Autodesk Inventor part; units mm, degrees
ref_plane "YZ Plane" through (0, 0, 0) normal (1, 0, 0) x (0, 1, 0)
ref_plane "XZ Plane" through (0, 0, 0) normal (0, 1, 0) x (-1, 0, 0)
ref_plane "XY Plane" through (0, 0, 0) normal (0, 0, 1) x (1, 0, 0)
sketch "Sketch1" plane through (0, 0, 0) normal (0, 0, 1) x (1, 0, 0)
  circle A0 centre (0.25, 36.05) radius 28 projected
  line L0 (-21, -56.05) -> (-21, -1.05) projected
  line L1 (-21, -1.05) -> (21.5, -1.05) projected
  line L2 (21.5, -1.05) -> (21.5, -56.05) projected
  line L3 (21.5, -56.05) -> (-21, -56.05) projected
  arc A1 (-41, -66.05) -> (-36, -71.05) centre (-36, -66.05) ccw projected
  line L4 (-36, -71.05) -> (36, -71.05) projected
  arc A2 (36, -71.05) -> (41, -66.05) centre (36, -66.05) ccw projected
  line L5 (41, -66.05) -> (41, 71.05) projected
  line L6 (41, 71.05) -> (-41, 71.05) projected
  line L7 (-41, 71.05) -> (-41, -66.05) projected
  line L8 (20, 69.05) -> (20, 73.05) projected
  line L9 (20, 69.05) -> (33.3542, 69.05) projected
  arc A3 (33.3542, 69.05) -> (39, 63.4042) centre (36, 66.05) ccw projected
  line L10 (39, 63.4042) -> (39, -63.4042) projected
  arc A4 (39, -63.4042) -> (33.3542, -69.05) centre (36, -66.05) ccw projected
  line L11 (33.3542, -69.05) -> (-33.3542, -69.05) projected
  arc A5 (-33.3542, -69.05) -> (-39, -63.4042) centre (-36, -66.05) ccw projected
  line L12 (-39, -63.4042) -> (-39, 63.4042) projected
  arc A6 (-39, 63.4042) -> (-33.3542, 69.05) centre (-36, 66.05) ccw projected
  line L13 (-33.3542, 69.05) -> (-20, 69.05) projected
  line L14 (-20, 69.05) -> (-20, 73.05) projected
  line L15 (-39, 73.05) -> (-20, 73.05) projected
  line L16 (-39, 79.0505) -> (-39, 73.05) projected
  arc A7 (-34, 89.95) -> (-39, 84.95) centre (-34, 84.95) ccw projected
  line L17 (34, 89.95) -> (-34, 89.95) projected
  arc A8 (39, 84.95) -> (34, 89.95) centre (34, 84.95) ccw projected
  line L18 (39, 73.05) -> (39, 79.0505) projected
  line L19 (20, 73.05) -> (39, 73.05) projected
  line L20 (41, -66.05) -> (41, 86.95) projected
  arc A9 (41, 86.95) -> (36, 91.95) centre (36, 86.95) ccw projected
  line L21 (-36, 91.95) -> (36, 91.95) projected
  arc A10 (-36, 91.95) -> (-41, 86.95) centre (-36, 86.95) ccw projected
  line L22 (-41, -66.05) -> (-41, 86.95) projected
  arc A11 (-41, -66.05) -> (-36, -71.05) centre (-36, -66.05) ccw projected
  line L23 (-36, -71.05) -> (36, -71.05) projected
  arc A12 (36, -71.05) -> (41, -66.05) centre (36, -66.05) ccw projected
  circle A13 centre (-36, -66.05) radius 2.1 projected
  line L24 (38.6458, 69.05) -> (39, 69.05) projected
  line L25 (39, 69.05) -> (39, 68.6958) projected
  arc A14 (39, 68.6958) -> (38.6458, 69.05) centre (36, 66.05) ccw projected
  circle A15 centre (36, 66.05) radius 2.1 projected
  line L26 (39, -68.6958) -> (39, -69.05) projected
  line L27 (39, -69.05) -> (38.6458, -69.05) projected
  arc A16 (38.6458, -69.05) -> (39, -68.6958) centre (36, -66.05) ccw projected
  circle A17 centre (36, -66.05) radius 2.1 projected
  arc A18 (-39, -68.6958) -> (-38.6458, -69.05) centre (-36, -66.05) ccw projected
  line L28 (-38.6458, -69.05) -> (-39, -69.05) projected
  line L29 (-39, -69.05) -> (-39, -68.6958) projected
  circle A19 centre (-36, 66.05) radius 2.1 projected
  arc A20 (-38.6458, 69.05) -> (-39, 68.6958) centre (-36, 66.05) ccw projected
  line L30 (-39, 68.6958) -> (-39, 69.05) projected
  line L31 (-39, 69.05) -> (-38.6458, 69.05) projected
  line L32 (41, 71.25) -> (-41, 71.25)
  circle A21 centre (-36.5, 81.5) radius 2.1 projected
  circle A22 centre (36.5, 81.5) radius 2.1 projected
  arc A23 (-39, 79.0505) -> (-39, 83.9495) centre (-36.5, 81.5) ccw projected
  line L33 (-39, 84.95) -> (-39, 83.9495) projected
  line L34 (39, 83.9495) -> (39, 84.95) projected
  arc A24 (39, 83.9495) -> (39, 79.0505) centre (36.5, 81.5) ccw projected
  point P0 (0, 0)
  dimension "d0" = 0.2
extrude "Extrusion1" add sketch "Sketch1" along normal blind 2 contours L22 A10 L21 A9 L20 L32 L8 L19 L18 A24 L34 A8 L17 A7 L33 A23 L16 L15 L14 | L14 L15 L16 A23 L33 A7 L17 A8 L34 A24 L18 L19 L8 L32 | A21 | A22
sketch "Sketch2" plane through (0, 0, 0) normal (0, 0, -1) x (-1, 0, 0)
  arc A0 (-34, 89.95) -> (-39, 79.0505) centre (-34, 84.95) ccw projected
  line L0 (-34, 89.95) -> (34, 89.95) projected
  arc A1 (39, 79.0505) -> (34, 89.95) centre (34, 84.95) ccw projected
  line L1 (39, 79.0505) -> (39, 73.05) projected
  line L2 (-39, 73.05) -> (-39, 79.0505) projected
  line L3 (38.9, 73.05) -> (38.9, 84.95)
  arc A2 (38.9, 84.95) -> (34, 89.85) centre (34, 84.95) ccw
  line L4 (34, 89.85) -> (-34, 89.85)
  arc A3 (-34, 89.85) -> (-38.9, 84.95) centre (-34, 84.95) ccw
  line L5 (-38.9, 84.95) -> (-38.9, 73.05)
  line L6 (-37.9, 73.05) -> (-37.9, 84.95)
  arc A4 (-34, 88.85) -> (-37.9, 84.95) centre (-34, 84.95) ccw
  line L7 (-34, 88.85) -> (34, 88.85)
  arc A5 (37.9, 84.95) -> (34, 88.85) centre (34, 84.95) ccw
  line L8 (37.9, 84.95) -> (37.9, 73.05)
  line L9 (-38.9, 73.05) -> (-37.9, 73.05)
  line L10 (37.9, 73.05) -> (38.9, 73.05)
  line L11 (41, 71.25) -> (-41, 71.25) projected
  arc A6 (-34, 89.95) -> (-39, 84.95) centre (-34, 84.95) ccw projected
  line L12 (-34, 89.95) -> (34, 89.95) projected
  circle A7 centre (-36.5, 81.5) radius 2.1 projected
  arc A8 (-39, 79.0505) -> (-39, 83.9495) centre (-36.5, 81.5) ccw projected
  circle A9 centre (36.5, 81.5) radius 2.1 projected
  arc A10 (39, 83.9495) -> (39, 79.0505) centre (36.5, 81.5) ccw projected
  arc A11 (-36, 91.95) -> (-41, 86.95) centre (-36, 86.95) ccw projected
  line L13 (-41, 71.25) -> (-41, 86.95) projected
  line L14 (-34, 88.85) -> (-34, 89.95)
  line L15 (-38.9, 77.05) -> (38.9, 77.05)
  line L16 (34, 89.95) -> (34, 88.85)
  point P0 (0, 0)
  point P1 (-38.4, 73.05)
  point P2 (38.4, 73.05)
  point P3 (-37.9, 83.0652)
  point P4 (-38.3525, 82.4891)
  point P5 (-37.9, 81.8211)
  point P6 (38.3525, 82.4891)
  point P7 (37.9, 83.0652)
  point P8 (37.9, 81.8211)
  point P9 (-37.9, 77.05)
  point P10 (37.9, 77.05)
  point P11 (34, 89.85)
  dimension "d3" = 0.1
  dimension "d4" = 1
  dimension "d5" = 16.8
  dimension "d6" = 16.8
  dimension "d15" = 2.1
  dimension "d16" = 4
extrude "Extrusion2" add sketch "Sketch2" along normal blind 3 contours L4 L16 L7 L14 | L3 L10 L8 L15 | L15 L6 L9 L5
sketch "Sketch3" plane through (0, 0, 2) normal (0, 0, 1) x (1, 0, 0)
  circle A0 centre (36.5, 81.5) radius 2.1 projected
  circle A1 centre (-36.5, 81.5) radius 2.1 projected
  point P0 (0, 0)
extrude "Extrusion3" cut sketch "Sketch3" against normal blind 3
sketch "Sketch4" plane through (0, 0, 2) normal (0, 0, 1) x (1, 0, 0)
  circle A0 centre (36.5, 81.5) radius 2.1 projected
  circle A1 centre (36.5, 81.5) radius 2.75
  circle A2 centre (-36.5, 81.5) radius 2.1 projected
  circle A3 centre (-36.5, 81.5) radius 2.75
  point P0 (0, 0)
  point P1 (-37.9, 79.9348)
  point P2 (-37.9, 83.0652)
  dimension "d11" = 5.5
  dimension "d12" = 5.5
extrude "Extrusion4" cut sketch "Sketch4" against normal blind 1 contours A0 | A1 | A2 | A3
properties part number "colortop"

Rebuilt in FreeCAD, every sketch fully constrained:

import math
import FreeCAD as App
import Part
import Sketcher

doc = App.newDocument("Part")
body = doc.addObject("PartDesign::Body", "Body")

sketch1 = doc.addObject("Sketcher::SketchObject", "Sketch")
body.addObject(sketch1)
sketch1.AttachmentSupport = (doc.XY_Plane, [""])
sketch1.MapMode = "FlatFace"
sketch1.addGeometry(Part.LineSegment(App.Vector(-41, 86.95, 0), App.Vector(-41, 71.25, 0)), False)
sketch1.addGeometry(Part.LineSegment(App.Vector(-41, 71.25, 0), App.Vector(41, 71.25, 0)), False)
sketch1.addGeometry(Part.LineSegment(App.Vector(41, 71.25, 0), App.Vector(41, 86.95, 0)), False)
sketch1.addGeometry(Part.ArcOfCircle(Part.Circle(App.Vector(36, 86.95, 0), App.Vector(0, 0, 1), 5), math.radians(0), math.radians(90)), False)
sketch1.addGeometry(Part.LineSegment(App.Vector(36, 91.95, 0), App.Vector(-36, 91.95, 0)), False)
sketch1.addGeometry(Part.ArcOfCircle(Part.Circle(App.Vector(-36, 86.95, 0), App.Vector(0, 0, 1), 5), math.radians(90), math.radians(180)), False)
sketch1.addConstraint(Sketcher.Constraint("Coincident", 0, 2, 1, 1))
sketch1.addConstraint(Sketcher.Constraint("Coincident", 1, 2, 2, 1))
sketch1.addConstraint(Sketcher.Constraint("Tangent", 2, 2, 3, 1))
sketch1.addConstraint(Sketcher.Constraint("Tangent", 3, 2, 4, 1))
sketch1.addConstraint(Sketcher.Constraint("Tangent", 4, 2, 5, 1))
sketch1.addConstraint(Sketcher.Constraint("Tangent", 5, 2, 0, 1))
sketch1.addConstraint(Sketcher.Constraint("Vertical", 0))
sketch1.addConstraint(Sketcher.Constraint("Horizontal", 1))
sketch1.addConstraint(Sketcher.Constraint("Vertical", 2))
sketch1.addConstraint(Sketcher.Constraint("Horizontal", 4))
sketch1.addConstraint(Sketcher.Constraint("Equal", 3, 5))
sketch1.addConstraint(Sketcher.Constraint("Radius", 3, 5.0))
sketch1.addConstraint(Sketcher.Constraint("DistanceX", 1, 1, 1, 2, 82.0))
sketch1.addConstraint(Sketcher.Constraint("DistanceY", 0, 2, 0, 1, 15.7))
sketch1.addConstraint(Sketcher.Constraint("DistanceX", -1, 1, 3, 3, 36.0))
sketch1.addConstraint(Sketcher.Constraint("DistanceY", -1, 1, 3, 3, 86.95))
pad1 = doc.addObject("PartDesign::Pad", "Pad")
body.addObject(pad1)
pad1.Profile = sketch1
pad1.Length = 2

sketch2 = doc.addObject("Sketcher::SketchObject", "Sketch001")
body.addObject(sketch2)
sketch2.AttachmentSupport = (doc.XY_Plane, [""])
sketch2.MapMode = "FlatFace"
sketch2.addGeometry(Part.LineSegment(App.Vector(-34, 89.85, 0), App.Vector(34, 89.85, 0)), False)
sketch2.addGeometry(Part.LineSegment(App.Vector(34, 89.85, 0), App.Vector(34, 88.85, 0)), False)
sketch2.addGeometry(Part.LineSegment(App.Vector(34, 88.85, 0), App.Vector(-34, 88.85, 0)), False)
sketch2.addGeometry(Part.LineSegment(App.Vector(-34, 88.85, 0), App.Vector(-34, 89.85, 0)), False)
sketch2.addGeometry(Part.LineSegment(App.Vector(-38.9, 73.05, 0), App.Vector(-38.9, 77.05, 0)), False)
sketch2.addGeometry(Part.LineSegment(App.Vector(-38.9, 77.05, 0), App.Vector(-37.9, 77.05, 0)), False)
sketch2.addGeometry(Part.LineSegment(App.Vector(-37.9, 77.05, 0), App.Vector(-37.9, 73.05, 0)), False)
sketch2.addGeometry(Part.LineSegment(App.Vector(-37.9, 73.05, 0), App.Vector(-38.9, 73.05, 0)), False)
sketch2.addGeometry(Part.LineSegment(App.Vector(37.9, 77.05, 0), App.Vector(38.9, 77.05, 0)), False)
sketch2.addGeometry(Part.LineSegment(App.Vector(38.9, 77.05, 0), App.Vector(38.9, 73.05, 0)), False)
sketch2.addGeometry(Part.LineSegment(App.Vector(38.9, 73.05, 0), App.Vector(37.9, 73.05, 0)), False)
sketch2.addGeometry(Part.LineSegment(App.Vector(37.9, 73.05, 0), App.Vector(37.9, 77.05, 0)), False)
sketch2.addConstraint(Sketcher.Constraint("Coincident", 0, 2, 1, 1))
sketch2.addConstraint(Sketcher.Constraint("Coincident", 1, 2, 2, 1))
sketch2.addConstraint(Sketcher.Constraint("Coincident", 2, 2, 3, 1))
sketch2.addConstraint(Sketcher.Constraint("Coincident", 3, 2, 0, 1))
sketch2.addConstraint(Sketcher.Constraint("Coincident", 4, 2, 5, 1))
sketch2.addConstraint(Sketcher.Constraint("Coincident", 5, 2, 6, 1))
sketch2.addConstraint(Sketcher.Constraint("Coincident", 6, 2, 7, 1))
sketch2.addConstraint(Sketcher.Constraint("Coincident", 7, 2, 4, 1))
sketch2.addConstraint(Sketcher.Constraint("Coincident", 8, 2, 9, 1))
sketch2.addConstraint(Sketcher.Constraint("Coincident", 9, 2, 10, 1))
sketch2.addConstraint(Sketcher.Constraint("Coincident", 10, 2, 11, 1))
sketch2.addConstraint(Sketcher.Constraint("Coincident", 11, 2, 8, 1))
sketch2.addConstraint(Sketcher.Constraint("Horizontal", 0))
sketch2.addConstraint(Sketcher.Constraint("Vertical", 1))
sketch2.addConstraint(Sketcher.Constraint("Horizontal", 2))
sketch2.addConstraint(Sketcher.Constraint("Vertical", 3))
sketch2.addConstraint(Sketcher.Constraint("Vertical", 4))
sketch2.addConstraint(Sketcher.Constraint("Horizontal", 5))
sketch2.addConstraint(Sketcher.Constraint("Vertical", 6))
sketch2.addConstraint(Sketcher.Constraint("Horizontal", 7))
sketch2.addConstraint(Sketcher.Constraint("Horizontal", 8))
sketch2.addConstraint(Sketcher.Constraint("Vertical", 9))
sketch2.addConstraint(Sketcher.Constraint("Horizontal", 10))
sketch2.addConstraint(Sketcher.Constraint("Vertical", 11))
sketch2.addConstraint(Sketcher.Constraint("Symmetric", 4, 2, 8, 2, -2))
sketch2.addConstraint(Sketcher.Constraint("Symmetric", 6, 2, 10, 2, -2))
sketch2.addConstraint(Sketcher.Constraint("Equal", 10, 1))
sketch2.addConstraint(Sketcher.Constraint("DistanceX", 5, 1, 5, 2, 1.0))
sketch2.addConstraint(Sketcher.Constraint("DistanceY", 4, 1, 4, 2, 4.0))
sketch2.addConstraint(Sketcher.Constraint("DistanceY", 6, 2, 3, 2, 16.8))
sketch2.addConstraint(Sketcher.Constraint("DistanceX", 0, 1, 0, 2, 68.0))
sketch2.addConstraint(Sketcher.Constraint("DistanceX", -1, 1, 0, 2, 34.0))
sketch2.addConstraint(Sketcher.Constraint("DistanceX", 4, 2, -1, 1, 38.9))
sketch2.addConstraint(Sketcher.Constraint("DistanceY", -1, 1, 0, 2, 89.85))
pad2 = doc.addObject("PartDesign::Pad", "Pad001")
body.addObject(pad2)
pad2.Profile = sketch2
pad2.Length = 3
pad2.Reversed = True

sketch3 = doc.addObject("Sketcher::SketchObject", "Sketch002")
body.addObject(sketch3)
sketch3.AttachmentSupport = (doc.XY_Plane, [""])
sketch3.MapMode = "FlatFace"
sketch3.AttachmentOffset = App.Placement(App.Vector(0, 0, 2), App.Rotation())
sketch3.addGeometry(Part.Circle(App.Vector(36.5, 81.5, 0), App.Vector(0, 0, 1), 2.1), False)
sketch3.addGeometry(Part.Circle(App.Vector(-36.5, 81.5, 0), App.Vector(0, 0, 1), 2.1), False)
sketch3.addConstraint(Sketcher.Constraint("Equal", 0, 1))
sketch3.addConstraint(Sketcher.Constraint("Symmetric", 0, 3, 1, 3, -2))
sketch3.addConstraint(Sketcher.Constraint("Diameter", 0, 4.2))
sketch3.addConstraint(Sketcher.Constraint("DistanceX", 1, 3, 0, 3, 73.0))
sketch3.addConstraint(Sketcher.Constraint("DistanceY", -1, 1, 0, 3, 81.5))
pocket1 = doc.addObject("PartDesign::Pocket", "Pocket")
body.addObject(pocket1)
pocket1.Profile = sketch3
pocket1.Length = 3

sketch4 = doc.addObject("Sketcher::SketchObject", "Sketch003")
body.addObject(sketch4)
sketch4.AttachmentSupport = (doc.XY_Plane, [""])
sketch4.MapMode = "FlatFace"
sketch4.AttachmentOffset = App.Placement(App.Vector(0, 0, 2), App.Rotation())
sketch4.addGeometry(Part.Circle(App.Vector(36.5, 81.5, 0), App.Vector(0, 0, 1), 2.75), False)
sketch4.addGeometry(Part.Circle(App.Vector(-36.5, 81.5, 0), App.Vector(0, 0, 1), 2.75), False)
sketch4.addConstraint(Sketcher.Constraint("Equal", 0, 1))
sketch4.addConstraint(Sketcher.Constraint("Symmetric", 0, 3, 1, 3, -2))
sketch4.addConstraint(Sketcher.Constraint("Diameter", 0, 5.5))
sketch4.addConstraint(Sketcher.Constraint("DistanceX", 1, 3, 0, 3, 73.0))
sketch4.addConstraint(Sketcher.Constraint("DistanceY", -1, 1, 0, 3, 81.5))
pocket2 = doc.addObject("PartDesign::Pocket", "Pocket001")
body.addObject(pocket2)
pocket2.Profile = sketch4
pocket2.Length = 1

doc.recompute()
